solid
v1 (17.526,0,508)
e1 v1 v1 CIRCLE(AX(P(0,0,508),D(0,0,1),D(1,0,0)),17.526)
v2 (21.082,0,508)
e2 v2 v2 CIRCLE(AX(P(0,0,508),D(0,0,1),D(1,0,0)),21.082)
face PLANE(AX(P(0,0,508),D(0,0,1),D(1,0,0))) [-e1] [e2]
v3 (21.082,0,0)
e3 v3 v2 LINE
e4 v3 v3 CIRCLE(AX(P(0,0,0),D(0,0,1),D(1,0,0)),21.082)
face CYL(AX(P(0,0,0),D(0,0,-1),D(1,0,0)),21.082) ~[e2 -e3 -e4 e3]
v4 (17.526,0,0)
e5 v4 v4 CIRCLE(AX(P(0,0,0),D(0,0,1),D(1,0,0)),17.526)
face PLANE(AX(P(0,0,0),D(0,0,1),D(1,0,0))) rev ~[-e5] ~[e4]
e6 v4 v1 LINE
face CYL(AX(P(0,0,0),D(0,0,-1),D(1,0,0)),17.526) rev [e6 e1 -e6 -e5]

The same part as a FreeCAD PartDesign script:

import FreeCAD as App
import Part
import Sketcher

V = App.Vector
Q = App.Units.Quantity

doc = App.newDocument("Part")
body = doc.addObject("PartDesign::Body", "Body")

# Sketch on XY plane
sketch1 = body.newObject("Sketcher::SketchObject", "Sketch")
sketch1.AttachmentSupport = (doc.getObject("XY_Plane"), [""])
sketch1.MapMode = "FlatFace"
sketch1.addGeometry([
    Part.Circle(V(0, 0, 0), V(0, 0, 1), 21.082),
    Part.Circle(V(0, 0, 0), V(0, 0, 1), 17.526),
], False)
sketch1.addConstraint([
    Sketcher.Constraint("Coincident", 0, 3, -1, 1),
    Sketcher.Constraint("Coincident", 1, 3, -1, 1),
    Sketcher.Constraint("Diameter", 0, Q("1.66 in")),
    Sketcher.Constraint("Diameter", 1, Q("1.38 in")),
])
pad1 = body.newObject("PartDesign::Pad", "Pad")
pad1.Profile = sketch1
pad1.Length = Q("20 in")

doc.recompute()
